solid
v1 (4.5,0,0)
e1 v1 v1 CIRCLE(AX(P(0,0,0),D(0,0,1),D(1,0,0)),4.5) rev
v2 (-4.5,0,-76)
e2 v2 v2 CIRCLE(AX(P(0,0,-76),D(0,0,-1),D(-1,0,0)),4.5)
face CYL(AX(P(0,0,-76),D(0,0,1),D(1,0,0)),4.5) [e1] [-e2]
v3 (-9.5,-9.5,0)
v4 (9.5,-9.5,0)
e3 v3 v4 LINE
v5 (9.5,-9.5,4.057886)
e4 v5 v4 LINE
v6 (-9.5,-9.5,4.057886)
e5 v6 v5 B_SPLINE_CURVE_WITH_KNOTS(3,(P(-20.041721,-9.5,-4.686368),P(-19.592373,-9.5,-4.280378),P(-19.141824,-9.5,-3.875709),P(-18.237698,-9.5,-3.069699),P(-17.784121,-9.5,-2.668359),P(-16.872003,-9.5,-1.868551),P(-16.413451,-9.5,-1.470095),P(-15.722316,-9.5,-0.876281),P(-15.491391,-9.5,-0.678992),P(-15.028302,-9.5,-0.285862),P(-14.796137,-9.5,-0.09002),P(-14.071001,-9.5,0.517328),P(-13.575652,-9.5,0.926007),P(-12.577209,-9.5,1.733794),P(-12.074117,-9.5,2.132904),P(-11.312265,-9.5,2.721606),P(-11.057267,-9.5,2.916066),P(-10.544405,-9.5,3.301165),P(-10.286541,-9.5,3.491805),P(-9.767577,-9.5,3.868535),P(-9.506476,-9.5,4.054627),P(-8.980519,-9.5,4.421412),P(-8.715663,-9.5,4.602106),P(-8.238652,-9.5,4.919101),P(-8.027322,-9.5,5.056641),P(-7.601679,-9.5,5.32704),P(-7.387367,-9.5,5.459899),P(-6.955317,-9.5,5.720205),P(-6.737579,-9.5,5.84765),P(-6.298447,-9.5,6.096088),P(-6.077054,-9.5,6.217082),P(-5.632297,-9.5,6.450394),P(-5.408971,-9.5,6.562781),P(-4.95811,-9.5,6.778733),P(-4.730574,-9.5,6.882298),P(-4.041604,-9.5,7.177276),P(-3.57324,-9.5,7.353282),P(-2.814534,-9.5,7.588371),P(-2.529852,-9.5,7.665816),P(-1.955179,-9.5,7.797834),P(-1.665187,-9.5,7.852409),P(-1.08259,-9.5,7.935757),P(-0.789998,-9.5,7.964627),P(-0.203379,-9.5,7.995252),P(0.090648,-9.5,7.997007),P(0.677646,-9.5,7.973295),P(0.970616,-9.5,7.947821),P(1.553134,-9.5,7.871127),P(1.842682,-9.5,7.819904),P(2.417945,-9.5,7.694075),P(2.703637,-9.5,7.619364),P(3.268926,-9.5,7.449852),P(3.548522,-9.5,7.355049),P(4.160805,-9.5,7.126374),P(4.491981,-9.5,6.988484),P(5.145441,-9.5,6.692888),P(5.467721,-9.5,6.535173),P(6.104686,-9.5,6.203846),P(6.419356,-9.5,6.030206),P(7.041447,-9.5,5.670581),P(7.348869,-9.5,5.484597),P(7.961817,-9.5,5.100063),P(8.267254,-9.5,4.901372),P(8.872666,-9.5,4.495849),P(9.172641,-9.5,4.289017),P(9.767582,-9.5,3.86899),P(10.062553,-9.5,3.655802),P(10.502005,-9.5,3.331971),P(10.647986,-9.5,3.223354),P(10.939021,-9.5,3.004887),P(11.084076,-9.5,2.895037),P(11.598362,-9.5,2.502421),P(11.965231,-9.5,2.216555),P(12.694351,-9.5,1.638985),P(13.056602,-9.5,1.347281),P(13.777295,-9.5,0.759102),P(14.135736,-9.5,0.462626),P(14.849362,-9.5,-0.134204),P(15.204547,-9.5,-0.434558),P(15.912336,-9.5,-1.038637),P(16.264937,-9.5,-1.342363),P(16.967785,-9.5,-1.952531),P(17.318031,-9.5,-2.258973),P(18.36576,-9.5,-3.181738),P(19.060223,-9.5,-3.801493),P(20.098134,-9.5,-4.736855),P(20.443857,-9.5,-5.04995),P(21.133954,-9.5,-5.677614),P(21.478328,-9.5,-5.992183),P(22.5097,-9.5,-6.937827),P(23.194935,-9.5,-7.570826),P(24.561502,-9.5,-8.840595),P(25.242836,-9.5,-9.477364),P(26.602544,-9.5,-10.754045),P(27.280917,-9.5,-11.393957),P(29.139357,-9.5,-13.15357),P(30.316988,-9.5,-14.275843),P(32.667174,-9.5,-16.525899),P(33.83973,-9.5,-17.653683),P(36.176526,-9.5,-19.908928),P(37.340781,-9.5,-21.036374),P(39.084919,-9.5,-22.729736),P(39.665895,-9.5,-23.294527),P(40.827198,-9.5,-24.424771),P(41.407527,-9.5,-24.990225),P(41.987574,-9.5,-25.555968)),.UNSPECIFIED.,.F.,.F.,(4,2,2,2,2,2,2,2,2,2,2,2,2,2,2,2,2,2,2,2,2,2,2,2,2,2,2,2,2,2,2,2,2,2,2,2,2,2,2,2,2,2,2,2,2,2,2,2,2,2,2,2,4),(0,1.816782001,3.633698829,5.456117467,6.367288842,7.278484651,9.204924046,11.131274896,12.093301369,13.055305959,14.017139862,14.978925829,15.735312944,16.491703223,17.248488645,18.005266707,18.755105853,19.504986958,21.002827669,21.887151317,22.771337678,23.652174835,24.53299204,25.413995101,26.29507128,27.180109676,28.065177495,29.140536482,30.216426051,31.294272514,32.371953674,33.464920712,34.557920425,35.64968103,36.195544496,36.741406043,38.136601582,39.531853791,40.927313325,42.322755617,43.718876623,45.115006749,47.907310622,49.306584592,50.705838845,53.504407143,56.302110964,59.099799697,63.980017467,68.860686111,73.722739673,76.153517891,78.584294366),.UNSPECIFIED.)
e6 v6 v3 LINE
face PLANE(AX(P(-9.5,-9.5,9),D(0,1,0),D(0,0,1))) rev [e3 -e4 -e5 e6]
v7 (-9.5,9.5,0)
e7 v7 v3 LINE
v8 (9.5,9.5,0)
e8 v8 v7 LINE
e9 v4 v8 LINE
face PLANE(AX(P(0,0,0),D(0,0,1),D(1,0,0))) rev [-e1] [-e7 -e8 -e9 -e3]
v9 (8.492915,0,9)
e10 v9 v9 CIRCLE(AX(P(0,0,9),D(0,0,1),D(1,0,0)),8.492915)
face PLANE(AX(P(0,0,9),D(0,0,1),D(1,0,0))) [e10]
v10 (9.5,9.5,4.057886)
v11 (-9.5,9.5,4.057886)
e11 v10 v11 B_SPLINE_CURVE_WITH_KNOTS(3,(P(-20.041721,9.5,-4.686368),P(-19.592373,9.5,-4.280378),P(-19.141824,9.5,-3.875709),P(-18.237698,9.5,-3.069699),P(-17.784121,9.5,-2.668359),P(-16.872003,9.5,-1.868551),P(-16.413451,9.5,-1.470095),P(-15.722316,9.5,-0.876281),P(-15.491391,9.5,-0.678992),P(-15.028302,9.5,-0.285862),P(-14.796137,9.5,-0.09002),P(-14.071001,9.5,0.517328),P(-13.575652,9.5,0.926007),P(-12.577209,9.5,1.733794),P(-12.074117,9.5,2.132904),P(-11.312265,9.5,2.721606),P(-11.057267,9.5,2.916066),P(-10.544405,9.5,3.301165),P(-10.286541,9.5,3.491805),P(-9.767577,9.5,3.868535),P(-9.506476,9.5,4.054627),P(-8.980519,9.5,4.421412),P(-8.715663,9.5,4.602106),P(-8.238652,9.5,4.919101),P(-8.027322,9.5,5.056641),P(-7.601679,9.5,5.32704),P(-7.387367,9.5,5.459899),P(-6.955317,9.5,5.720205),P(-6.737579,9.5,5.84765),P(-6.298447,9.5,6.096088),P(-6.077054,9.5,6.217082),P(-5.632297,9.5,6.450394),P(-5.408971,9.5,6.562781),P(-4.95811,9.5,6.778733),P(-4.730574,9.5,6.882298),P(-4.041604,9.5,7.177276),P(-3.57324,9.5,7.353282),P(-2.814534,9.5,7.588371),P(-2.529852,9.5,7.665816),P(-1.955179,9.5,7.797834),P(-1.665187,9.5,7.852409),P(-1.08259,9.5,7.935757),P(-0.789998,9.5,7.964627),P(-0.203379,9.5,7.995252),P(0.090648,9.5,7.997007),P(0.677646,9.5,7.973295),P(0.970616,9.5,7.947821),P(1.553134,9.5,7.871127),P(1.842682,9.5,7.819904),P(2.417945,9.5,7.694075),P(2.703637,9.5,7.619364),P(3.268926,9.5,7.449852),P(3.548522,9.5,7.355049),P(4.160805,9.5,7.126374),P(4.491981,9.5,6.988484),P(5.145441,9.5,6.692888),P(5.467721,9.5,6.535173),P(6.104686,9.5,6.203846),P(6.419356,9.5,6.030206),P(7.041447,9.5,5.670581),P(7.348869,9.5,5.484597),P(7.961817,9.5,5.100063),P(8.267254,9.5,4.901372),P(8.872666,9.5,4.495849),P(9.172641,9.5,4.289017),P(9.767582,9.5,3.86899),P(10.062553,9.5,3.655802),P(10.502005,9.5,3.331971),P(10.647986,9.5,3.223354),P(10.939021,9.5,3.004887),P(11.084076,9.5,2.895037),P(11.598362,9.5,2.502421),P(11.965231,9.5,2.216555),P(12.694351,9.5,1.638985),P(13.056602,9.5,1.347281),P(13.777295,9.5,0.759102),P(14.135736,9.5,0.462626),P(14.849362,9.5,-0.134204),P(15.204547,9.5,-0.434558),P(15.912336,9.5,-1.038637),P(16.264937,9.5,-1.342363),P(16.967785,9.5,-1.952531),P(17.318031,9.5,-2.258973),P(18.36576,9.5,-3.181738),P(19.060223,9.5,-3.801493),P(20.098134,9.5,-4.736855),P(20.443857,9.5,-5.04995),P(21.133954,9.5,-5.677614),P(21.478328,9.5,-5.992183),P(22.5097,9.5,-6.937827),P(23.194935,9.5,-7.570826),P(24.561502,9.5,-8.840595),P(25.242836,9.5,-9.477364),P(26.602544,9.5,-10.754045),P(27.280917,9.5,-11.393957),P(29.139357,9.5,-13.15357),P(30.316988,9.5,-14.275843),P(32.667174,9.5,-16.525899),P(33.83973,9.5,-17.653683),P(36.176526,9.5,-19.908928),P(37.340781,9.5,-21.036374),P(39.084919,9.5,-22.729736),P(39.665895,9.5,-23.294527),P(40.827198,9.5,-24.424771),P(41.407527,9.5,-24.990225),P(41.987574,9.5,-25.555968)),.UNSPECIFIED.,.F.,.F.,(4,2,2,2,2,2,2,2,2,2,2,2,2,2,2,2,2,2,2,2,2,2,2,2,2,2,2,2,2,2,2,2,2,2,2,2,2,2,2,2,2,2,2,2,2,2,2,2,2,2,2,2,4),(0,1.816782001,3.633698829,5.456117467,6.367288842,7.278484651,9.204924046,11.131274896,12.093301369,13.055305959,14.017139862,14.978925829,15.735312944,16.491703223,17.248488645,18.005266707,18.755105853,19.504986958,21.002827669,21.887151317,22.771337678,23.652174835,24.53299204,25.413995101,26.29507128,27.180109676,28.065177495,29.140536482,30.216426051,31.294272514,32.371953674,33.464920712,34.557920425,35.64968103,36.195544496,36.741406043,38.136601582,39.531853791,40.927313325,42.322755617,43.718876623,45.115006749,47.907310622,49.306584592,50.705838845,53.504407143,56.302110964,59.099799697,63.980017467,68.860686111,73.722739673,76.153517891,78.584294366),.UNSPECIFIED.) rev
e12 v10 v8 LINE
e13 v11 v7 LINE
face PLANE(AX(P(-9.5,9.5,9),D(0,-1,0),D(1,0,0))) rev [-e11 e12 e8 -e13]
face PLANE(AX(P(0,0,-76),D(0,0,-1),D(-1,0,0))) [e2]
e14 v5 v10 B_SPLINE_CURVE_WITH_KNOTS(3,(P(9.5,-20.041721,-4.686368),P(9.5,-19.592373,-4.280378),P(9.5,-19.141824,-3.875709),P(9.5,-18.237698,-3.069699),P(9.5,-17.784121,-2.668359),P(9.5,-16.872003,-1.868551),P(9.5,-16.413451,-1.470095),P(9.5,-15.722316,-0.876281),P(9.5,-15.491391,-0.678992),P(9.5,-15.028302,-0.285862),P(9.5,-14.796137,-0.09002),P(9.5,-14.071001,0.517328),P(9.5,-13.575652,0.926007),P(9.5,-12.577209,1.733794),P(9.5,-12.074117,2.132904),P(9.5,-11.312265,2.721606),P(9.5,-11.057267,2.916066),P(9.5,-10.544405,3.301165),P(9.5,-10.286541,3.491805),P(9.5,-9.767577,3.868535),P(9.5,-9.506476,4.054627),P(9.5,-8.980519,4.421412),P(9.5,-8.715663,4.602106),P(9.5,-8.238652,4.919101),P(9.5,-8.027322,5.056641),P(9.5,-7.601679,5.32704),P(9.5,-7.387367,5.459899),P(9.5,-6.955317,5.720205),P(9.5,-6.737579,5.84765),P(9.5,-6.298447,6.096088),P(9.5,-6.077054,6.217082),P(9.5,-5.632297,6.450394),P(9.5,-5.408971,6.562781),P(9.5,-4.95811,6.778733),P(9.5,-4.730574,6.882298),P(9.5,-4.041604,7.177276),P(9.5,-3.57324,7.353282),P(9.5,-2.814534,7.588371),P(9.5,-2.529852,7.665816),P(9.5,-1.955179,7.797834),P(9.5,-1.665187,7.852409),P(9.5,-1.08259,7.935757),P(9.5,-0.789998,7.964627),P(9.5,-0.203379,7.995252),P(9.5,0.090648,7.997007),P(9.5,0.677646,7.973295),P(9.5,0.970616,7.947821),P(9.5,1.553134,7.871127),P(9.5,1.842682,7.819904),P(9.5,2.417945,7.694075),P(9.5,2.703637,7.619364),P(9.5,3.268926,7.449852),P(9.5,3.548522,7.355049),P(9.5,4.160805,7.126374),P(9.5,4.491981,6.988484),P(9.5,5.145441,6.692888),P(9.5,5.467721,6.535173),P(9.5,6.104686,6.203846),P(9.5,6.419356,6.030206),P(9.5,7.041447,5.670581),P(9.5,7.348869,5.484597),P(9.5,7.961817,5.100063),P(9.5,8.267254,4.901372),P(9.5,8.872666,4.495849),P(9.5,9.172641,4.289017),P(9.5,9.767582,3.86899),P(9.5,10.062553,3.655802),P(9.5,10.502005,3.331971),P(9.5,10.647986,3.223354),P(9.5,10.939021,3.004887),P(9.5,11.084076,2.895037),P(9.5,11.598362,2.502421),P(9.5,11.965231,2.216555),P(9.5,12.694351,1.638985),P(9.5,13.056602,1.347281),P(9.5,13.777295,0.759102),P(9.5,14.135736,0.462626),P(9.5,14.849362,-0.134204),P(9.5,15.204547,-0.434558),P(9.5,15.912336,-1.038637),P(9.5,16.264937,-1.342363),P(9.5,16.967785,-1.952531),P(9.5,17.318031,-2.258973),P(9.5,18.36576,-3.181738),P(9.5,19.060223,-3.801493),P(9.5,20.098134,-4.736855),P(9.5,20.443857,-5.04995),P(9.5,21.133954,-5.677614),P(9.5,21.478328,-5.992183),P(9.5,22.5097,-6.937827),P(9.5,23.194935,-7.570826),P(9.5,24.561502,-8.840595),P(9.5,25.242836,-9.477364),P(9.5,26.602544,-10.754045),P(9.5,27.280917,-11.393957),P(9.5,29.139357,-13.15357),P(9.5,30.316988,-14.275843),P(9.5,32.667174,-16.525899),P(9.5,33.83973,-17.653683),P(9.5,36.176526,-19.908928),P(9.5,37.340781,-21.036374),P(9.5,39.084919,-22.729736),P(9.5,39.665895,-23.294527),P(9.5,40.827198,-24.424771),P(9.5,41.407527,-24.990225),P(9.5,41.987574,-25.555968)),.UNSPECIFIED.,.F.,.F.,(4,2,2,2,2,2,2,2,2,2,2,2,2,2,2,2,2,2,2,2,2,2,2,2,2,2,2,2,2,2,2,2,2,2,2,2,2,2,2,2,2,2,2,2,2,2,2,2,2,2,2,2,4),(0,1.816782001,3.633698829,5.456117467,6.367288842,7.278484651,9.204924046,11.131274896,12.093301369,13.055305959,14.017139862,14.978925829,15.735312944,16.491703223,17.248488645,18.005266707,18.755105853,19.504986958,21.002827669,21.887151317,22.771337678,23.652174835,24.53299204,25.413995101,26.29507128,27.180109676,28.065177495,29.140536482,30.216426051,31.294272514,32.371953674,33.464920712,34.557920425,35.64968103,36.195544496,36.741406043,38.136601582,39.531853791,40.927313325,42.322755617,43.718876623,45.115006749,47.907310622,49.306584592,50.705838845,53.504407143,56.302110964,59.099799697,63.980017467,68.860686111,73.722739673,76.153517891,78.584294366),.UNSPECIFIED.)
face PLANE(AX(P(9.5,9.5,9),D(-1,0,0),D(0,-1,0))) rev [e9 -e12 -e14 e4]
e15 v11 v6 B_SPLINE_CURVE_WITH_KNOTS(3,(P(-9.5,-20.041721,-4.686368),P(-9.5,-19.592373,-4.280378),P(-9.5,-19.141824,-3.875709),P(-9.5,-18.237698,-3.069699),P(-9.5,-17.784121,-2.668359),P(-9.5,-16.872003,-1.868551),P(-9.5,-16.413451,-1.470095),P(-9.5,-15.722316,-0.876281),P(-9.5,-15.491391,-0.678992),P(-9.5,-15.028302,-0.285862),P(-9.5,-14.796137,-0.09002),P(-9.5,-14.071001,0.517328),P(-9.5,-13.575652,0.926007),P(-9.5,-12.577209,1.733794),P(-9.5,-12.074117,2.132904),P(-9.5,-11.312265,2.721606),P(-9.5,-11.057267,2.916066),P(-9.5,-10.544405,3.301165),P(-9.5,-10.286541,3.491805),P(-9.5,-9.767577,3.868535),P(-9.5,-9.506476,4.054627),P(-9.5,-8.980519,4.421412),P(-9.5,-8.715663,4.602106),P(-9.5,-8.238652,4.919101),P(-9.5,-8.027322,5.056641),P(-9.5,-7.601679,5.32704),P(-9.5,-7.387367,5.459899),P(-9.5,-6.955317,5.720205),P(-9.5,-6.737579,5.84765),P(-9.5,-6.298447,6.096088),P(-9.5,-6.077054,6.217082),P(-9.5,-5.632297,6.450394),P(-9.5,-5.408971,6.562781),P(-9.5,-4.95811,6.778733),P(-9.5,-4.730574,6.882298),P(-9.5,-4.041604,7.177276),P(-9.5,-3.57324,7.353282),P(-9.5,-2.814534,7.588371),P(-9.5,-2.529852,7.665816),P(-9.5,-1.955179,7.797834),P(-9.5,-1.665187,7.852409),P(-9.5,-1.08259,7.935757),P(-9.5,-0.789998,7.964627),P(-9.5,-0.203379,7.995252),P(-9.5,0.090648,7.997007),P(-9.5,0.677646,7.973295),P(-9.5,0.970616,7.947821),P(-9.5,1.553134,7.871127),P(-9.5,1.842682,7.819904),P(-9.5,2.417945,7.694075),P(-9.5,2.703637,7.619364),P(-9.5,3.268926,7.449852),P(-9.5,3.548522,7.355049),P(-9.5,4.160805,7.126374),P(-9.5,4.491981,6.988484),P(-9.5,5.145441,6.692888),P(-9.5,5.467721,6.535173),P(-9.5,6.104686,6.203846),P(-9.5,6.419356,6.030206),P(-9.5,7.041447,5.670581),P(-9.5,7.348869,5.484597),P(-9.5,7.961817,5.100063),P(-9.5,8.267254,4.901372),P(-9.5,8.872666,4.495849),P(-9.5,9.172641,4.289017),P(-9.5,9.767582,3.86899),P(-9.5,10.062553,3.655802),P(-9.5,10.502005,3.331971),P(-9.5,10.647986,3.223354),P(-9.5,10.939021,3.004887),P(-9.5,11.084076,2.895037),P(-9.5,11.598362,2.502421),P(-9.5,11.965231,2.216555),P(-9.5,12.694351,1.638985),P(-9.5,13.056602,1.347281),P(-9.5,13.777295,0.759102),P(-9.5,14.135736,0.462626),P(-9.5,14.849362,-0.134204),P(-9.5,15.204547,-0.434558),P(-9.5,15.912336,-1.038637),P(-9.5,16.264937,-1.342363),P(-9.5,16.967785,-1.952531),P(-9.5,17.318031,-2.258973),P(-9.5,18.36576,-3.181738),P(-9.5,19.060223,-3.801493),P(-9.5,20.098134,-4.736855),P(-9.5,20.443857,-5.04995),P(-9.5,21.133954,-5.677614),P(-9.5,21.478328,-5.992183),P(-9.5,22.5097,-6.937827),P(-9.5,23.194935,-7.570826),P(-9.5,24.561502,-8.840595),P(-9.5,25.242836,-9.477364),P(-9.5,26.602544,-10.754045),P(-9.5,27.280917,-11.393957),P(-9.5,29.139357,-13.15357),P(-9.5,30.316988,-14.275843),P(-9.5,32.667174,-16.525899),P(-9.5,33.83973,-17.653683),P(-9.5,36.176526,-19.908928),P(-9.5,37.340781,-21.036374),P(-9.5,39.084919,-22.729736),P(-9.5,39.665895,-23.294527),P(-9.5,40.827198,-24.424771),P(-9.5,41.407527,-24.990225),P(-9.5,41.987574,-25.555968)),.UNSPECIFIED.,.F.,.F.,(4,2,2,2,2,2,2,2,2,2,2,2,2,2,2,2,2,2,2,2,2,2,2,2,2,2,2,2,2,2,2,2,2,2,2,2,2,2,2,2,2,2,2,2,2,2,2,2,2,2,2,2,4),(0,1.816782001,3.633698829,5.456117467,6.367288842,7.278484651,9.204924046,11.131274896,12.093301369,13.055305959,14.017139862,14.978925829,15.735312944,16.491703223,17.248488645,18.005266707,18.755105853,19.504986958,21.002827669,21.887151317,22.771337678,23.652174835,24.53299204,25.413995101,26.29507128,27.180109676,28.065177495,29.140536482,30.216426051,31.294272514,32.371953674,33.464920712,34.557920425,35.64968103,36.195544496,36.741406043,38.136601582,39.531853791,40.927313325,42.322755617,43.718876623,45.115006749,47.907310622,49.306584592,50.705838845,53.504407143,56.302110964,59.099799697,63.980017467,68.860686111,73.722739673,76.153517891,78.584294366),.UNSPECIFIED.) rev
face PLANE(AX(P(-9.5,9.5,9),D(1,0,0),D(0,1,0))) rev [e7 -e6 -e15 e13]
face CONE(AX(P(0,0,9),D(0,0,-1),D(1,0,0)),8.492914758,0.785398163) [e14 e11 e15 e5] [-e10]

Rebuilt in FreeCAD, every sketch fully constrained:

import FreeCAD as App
import Part
import Sketcher


def faces_at(feature, points):
    """Names of the faces that lie closest to the given points."""
    faces = feature.Shape.Faces
    near = lambda p: min(range(len(faces)), key=lambda i: faces[i].distToShape(Part.Vertex(*p))[0])
    return sorted({f"Face{near(p) + 1}" for p in points})

doc = App.newDocument("Part")
body = doc.addObject("PartDesign::Body", "Body")

# Sketch on XY plane
sketch1 = body.newObject("Sketcher::SketchObject", "Sketch")
sketch1.AttachmentSupport = (doc.getObject("XY_Plane"), [""])
sketch1.MapMode = "FlatFace"
sketch1.addGeometry([
    Part.LineSegment(App.Vector(-9.5, 9.5, 0), App.Vector(-9.5, -9.5, 0)),
    Part.LineSegment(App.Vector(-9.5, -9.5, 0), App.Vector(9.5, -9.5, 0)),
    Part.LineSegment(App.Vector(9.5, -9.5, 0), App.Vector(9.5, 9.5, 0)),
    Part.LineSegment(App.Vector(9.5, 9.5, 0), App.Vector(-9.5, 9.5, 0)),
], False)
sketch1.addConstraint([
    Sketcher.Constraint("Coincident", 0, 2, 1, 1),
    Sketcher.Constraint("Coincident", 1, 2, 2, 1),
    Sketcher.Constraint("Coincident", 2, 2, 3, 1),
    Sketcher.Constraint("Coincident", 3, 2, 0, 1),
    Sketcher.Constraint("Vertical", 0),
    Sketcher.Constraint("Horizontal", 1),
    Sketcher.Constraint("Vertical", 2),
    Sketcher.Constraint("Horizontal", 3),
    Sketcher.Constraint("Symmetric", 0, 2, 2, 2, -1, 1),
    Sketcher.Constraint("Equal", 3, 0),
    Sketcher.Constraint("DistanceX", 1, 1, 1, 2, 19.0),
])
pad1 = body.newObject("PartDesign::Pad", "Pad")
pad1.Profile = sketch1
pad1.Length = 9
body2 = doc.addObject("PartDesign::Body", "Body001")

# Sketch on XY plane
sketch2 = body2.newObject("Sketcher::SketchObject", "Sketch001")
sketch2.AttachmentSupport = (doc.getObject("XY_Plane001"), [""])
sketch2.MapMode = "FlatFace"
sketch2.AttachmentOffset = App.Placement(App.Vector(0, 0, 9), App.Rotation())
sketch2.addGeometry([
    Part.LineSegment(App.Vector(-22.334, 22.334, 0), App.Vector(-22.334, -22.334, 0)),  # 0
    Part.LineSegment(App.Vector(-22.334, -22.334, 0), App.Vector(22.334, -22.334, 0)),  # 1
    Part.LineSegment(App.Vector(22.334, -22.334, 0), App.Vector(22.334, 22.334, 0)),  # 2
    Part.LineSegment(App.Vector(22.334, 22.334, 0), App.Vector(-22.334, 22.334, 0)),  # 3
    Part.Circle(App.Vector(0, 0, 0), App.Vector(0, 0, 1), 8.492915),  # 4
], False)
sketch2.addConstraint([
    Sketcher.Constraint("Coincident", 0, 2, 1, 1),
    Sketcher.Constraint("Coincident", 1, 2, 2, 1),
    Sketcher.Constraint("Coincident", 2, 2, 3, 1),
    Sketcher.Constraint("Coincident", 3, 2, 0, 1),
    Sketcher.Constraint("Vertical", 0),
    Sketcher.Constraint("Horizontal", 1),
    Sketcher.Constraint("Vertical", 2),
    Sketcher.Constraint("Horizontal", 3),
    Sketcher.Constraint("Coincident", 4, 3, -1, 1),
    Sketcher.Constraint("Symmetric", 0, 2, 2, 2, -1, 1),
    Sketcher.Constraint("Equal", 3, 0),
    Sketcher.Constraint("Diameter", 4, 16.98583),
    Sketcher.Constraint("DistanceX", 1, 1, 1, 2, 44.668),
])
pad2 = body2.newObject("PartDesign::Pad", "Pad001")
pad2.Profile = sketch2
pad2.Length = 9
pad2.Reversed = True
doc.recompute()

datumplane = body2.newObject("PartDesign::Plane", "DatumPlane")
datumplane.AttachmentSupport = (doc.getObject("XY_Plane001"), [""])
datumplane.MapMode = "FlatFace"
datumplane.AttachmentOffset = App.Placement(App.Vector(0, 0, 9), App.Rotation())
draft = body2.newObject("PartDesign::Draft", "Draft")
draft.Base = (pad2, faces_at(pad2, [
    (0, -22.334, 4.5),
    (22.334, 0, 4.5),
    (0, 22.334, 4.5),
    (-22.334, 0, 4.5),
    (-8.493, 0, 4.5),
]))
draft.NeutralPlane = (datumplane, [""])
draft.Angle = 45
draft.Reversed = True
doc.recompute()

boolean = body.newObject("PartDesign::Boolean", "Boolean")
boolean.Type = "Cut"
boolean.addObjects([body2])

# Sketch on XY plane
sketch3 = body.newObject("Sketcher::SketchObject", "Sketch002")
sketch3.AttachmentSupport = (doc.getObject("XY_Plane"), [""])
sketch3.MapMode = "FlatFace"
sketch3.addGeometry(Part.Circle(App.Vector(0, 0, 0), App.Vector(0, 0, 1), 4.5), False)
sketch3.addConstraint([
    Sketcher.Constraint("Coincident", 0, 3, -1, 1),
    Sketcher.Constraint("Diameter", 0, 9.0),
])
pad3 = body.newObject("PartDesign::Pad", "Pad002")
pad3.Profile = sketch3
pad3.Length = 76
pad3.Reversed = True

doc.recompute()
